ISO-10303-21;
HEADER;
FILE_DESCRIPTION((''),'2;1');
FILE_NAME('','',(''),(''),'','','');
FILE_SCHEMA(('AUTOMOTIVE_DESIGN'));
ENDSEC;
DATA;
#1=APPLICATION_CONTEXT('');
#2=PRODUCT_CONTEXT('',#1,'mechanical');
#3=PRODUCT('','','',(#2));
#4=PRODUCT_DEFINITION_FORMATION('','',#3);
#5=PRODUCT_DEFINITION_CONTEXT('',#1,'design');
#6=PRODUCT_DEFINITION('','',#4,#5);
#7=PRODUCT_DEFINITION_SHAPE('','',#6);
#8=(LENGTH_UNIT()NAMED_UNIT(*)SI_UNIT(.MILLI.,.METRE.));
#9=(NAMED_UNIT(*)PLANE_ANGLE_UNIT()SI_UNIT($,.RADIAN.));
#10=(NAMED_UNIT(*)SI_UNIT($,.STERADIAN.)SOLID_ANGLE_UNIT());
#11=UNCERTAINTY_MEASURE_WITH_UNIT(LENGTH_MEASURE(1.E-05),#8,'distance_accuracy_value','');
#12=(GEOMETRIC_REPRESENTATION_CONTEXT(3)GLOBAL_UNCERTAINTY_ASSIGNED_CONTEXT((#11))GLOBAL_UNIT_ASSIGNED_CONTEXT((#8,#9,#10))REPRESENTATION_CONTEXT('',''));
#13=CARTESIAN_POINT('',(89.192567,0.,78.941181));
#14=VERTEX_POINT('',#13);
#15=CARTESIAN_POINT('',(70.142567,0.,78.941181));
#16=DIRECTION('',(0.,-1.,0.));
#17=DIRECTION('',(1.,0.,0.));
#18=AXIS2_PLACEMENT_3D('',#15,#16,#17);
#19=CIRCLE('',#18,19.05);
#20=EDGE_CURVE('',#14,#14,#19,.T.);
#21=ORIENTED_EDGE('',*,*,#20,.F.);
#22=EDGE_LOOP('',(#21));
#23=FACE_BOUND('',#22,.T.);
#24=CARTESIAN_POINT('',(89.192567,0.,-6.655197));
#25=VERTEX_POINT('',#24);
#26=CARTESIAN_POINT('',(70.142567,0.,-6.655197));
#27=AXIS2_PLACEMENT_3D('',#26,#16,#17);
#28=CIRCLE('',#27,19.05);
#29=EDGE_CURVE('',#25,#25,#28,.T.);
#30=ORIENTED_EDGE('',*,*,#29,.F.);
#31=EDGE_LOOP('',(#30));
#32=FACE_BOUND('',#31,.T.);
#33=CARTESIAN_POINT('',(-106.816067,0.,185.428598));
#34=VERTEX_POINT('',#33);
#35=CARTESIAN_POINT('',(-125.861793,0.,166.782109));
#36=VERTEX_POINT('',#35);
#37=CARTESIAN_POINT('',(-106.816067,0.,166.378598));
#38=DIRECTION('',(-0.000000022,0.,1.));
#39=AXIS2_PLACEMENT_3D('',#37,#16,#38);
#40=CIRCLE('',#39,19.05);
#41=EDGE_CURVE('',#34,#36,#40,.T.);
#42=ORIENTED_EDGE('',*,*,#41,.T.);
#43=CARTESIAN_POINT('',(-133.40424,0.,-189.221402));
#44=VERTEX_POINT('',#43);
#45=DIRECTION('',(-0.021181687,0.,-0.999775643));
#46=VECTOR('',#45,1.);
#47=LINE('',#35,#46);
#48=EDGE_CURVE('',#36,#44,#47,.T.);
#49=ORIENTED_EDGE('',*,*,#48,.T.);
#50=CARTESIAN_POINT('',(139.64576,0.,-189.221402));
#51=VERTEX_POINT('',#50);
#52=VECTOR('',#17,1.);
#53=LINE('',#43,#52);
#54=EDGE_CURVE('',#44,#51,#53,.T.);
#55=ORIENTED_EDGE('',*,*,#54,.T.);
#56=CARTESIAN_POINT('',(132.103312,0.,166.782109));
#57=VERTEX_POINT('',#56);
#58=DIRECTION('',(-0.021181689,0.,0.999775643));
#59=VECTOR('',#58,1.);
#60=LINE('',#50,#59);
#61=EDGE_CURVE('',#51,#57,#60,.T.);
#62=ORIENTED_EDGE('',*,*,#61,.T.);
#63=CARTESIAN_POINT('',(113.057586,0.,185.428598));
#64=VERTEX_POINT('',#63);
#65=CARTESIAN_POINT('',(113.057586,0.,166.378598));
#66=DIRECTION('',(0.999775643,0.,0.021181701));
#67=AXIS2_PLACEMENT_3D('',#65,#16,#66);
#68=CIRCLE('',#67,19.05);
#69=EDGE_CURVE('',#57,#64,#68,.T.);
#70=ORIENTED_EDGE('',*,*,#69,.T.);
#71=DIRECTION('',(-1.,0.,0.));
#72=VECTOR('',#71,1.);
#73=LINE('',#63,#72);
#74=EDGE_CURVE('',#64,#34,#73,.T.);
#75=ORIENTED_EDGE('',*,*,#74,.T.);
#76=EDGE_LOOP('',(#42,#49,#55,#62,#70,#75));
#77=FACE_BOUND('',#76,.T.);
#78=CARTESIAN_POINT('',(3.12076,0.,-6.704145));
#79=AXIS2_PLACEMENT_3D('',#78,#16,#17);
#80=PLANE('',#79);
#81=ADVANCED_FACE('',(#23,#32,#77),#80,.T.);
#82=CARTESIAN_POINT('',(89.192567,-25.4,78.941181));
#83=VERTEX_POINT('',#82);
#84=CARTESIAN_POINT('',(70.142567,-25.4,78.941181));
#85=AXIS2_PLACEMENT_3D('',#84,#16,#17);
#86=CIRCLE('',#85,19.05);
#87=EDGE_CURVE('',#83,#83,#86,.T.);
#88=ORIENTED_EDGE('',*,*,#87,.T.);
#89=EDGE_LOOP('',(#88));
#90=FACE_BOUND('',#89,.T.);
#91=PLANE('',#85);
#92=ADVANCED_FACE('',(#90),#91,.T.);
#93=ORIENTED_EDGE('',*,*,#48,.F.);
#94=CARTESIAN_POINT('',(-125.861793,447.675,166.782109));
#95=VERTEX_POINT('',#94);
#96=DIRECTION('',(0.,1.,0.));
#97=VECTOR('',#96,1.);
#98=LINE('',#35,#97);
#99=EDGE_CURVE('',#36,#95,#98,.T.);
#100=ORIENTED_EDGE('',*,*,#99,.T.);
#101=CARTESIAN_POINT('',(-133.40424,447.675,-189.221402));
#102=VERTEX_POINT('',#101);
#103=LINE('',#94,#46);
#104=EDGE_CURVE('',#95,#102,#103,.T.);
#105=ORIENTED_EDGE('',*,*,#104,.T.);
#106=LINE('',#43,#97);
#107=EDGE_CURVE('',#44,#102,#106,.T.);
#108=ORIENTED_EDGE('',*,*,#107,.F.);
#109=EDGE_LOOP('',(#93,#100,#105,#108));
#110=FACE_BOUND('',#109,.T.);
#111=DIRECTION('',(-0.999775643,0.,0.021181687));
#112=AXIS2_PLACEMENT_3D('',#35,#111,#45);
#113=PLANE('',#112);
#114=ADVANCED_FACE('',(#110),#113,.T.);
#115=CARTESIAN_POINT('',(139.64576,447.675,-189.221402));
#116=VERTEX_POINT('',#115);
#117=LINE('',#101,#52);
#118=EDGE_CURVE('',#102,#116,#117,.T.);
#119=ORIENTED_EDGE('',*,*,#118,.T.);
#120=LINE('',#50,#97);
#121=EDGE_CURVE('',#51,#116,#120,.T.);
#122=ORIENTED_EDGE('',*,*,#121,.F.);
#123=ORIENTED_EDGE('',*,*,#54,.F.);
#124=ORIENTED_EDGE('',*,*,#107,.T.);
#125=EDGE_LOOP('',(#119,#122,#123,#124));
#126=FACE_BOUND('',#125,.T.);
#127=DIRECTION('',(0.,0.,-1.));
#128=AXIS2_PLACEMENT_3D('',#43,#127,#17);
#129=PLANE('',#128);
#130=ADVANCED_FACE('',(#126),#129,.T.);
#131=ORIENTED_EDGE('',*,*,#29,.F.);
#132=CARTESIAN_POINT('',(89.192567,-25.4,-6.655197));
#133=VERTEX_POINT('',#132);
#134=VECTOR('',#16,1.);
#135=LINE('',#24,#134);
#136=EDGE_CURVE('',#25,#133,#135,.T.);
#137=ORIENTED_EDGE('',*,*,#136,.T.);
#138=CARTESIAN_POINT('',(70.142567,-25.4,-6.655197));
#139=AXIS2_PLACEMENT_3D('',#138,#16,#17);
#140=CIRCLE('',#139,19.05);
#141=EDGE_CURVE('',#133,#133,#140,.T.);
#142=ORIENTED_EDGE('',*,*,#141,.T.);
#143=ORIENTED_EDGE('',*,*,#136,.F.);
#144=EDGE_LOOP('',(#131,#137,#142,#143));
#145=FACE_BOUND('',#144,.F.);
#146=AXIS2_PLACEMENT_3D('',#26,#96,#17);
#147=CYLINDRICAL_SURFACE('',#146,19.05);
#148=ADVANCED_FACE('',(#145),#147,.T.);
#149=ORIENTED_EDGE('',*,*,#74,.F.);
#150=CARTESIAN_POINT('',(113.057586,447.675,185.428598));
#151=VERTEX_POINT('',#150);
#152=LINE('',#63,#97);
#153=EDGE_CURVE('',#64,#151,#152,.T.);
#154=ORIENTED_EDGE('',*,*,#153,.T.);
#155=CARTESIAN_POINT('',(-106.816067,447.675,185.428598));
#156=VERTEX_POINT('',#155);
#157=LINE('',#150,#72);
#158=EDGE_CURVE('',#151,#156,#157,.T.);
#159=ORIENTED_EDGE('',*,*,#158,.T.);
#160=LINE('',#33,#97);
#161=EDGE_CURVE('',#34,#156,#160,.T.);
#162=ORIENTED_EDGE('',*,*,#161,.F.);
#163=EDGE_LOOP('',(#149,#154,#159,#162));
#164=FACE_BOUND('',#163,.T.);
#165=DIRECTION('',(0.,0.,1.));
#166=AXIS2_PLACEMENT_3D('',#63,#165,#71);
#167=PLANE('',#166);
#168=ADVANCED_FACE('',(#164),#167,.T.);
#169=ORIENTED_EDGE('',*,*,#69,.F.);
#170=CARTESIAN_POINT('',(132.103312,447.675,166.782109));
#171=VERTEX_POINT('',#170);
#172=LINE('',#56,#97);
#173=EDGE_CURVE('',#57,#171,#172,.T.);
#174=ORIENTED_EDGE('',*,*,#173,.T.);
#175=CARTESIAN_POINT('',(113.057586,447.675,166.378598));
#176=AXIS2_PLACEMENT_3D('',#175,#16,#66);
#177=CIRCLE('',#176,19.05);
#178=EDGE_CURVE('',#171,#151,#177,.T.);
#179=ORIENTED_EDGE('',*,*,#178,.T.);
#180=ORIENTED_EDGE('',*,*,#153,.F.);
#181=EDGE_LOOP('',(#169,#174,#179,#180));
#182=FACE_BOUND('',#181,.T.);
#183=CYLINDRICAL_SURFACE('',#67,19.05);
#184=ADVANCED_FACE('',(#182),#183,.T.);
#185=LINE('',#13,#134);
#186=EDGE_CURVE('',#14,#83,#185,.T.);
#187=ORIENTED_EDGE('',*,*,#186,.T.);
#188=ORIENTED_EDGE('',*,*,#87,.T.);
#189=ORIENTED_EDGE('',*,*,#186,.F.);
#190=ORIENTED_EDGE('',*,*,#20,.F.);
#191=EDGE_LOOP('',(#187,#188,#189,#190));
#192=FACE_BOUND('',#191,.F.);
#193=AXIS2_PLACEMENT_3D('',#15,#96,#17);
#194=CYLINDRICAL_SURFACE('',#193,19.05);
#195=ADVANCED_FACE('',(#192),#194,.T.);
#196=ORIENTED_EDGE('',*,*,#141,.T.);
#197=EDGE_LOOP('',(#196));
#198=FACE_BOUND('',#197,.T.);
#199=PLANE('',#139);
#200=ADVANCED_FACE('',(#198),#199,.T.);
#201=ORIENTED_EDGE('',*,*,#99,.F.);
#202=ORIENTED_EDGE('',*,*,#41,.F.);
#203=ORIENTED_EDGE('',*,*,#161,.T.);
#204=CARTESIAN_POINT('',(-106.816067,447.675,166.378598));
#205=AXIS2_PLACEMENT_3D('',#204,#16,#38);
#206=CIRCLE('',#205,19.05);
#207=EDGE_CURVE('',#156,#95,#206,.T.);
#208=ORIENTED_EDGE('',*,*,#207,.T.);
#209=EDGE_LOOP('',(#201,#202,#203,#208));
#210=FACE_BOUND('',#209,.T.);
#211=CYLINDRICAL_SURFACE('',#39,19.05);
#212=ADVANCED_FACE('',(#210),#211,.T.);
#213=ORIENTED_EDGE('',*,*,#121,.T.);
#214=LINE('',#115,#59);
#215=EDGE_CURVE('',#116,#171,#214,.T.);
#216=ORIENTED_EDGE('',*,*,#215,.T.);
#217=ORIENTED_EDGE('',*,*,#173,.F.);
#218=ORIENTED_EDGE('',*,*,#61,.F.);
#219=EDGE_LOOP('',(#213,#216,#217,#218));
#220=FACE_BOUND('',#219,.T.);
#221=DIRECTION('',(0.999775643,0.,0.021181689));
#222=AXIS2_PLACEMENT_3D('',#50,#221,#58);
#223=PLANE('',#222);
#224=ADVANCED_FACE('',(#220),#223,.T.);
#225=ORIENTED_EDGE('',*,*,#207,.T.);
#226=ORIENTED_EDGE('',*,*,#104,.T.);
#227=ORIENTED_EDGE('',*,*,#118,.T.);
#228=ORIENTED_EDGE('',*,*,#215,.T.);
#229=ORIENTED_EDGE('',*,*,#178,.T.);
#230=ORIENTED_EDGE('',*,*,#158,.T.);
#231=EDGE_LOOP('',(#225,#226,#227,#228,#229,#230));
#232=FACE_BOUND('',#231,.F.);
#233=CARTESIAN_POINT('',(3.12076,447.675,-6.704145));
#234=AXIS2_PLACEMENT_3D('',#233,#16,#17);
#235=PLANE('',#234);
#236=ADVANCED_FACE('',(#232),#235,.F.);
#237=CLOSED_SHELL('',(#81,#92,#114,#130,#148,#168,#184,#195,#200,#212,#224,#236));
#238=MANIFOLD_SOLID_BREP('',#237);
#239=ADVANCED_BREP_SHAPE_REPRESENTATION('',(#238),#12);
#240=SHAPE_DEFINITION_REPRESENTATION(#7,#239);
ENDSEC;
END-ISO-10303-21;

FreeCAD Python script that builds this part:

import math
import FreeCAD as App
import Part
import Sketcher

V = App.Vector
Q = App.Units.Quantity

doc = App.newDocument("Part")
body = doc.addObject("PartDesign::Body", "Body")

# Sketch on XZ plane
sketch1 = doc.addObject("Sketcher::SketchObject", "Sketch")
body.addObject(sketch1)
sketch1.AttachmentSupport = (doc.XZ_Plane, [""])
sketch1.MapMode = "FlatFace"
sketch1.addGeometry(Part.LineSegment(V(113, 185, 0), V(-107, 185, 0)), False)
sketch1.addGeometry(Part.ArcOfCircle(Part.Circle(V(-107, 166, 0), V(0, 0, 1), 19), math.radians(90), math.radians(179)), False)
sketch1.addGeometry(Part.LineSegment(V(-126, 167, 0), V(-133, -189, 0)), False)
sketch1.addGeometry(Part.LineSegment(V(-133, -189, 0), V(140, -189, 0)), False)
sketch1.addGeometry(Part.LineSegment(V(140, -189, 0), V(132, 167, 0)), False)
sketch1.addGeometry(Part.ArcOfCircle(Part.Circle(V(113, 166, 0), V(0, 0, 1), 19), math.radians(1), math.radians(90)), False)
sketch1.addConstraint(Sketcher.Constraint("Tangent", 0, 2, 1, 1))
sketch1.addConstraint(Sketcher.Constraint("Tangent", 1, 2, 2, 1))
sketch1.addConstraint(Sketcher.Constraint("Coincident", 2, 2, 3, 1))
sketch1.addConstraint(Sketcher.Constraint("Coincident", 3, 2, 4, 1))
sketch1.addConstraint(Sketcher.Constraint("Tangent", 4, 2, 5, 1))
sketch1.addConstraint(Sketcher.Constraint("Tangent", 5, 2, 0, 1))
sketch1.addConstraint(Sketcher.Constraint("Horizontal", 0))
sketch1.addConstraint(Sketcher.Constraint("Horizontal", 3))
sketch1.addConstraint(Sketcher.Constraint("Equal", 1, 5))
sketch1.addConstraint(Sketcher.Constraint("Horizontal", 1, 2, 4, 2))
sketch1.addConstraint(Sketcher.Constraint("Radius", 1, Q("0.75 in")))
sketch1.addConstraint(Sketcher.Constraint("DistanceY", 2, 2, 1, 3, Q("14 in")))
sketch1.addConstraint(Sketcher.Constraint("DistanceX", 3, 1, 3, 2, Q("10.75 in")))
sketch1.addConstraint(Sketcher.Constraint("Distance", 2, Q("356.083401 mm")))
sketch1.addConstraint(Sketcher.Constraint("DistanceY", -1, 1, 0, 2, Q("185.428598 mm")))
sketch1.addConstraint(Sketcher.Constraint("DistanceX", 2, 2, -1, 1, Q("133.40424 mm")))
pad1 = doc.addObject("PartDesign::Pad", "Pad")
body.addObject(pad1)
pad1.Profile = sketch1
pad1.Length = Q("17.625 in")
pad1.Reversed = True

# Sketch on XZ plane
sketch2 = doc.addObject("Sketcher::SketchObject", "Sketch001")
body.addObject(sketch2)
sketch2.AttachmentSupport = (doc.XZ_Plane, [""])
sketch2.MapMode = "FlatFace"
sketch2.addGeometry(Part.Circle(V(70, 79, 0), V(0, 0, 1), 19), False)
sketch2.addGeometry(Part.Circle(V(70, -7, 0), V(0, 0, 1), 19), False)
sketch2.addConstraint(Sketcher.Constraint("Equal", 0, 1))
sketch2.addConstraint(Sketcher.Constraint("Vertical", 0, 3, 1, 3))
sketch2.addConstraint(Sketcher.Constraint("Diameter", 0, Q("1.5 in")))
sketch2.addConstraint(Sketcher.Constraint("DistanceY", -1, 1, 0, 3, Q("78.941181 mm")))
sketch2.addConstraint(Sketcher.Constraint("DistanceY", 1, 3, 0, 3, Q("85.596378 mm")))
sketch2.addConstraint(Sketcher.Constraint("DistanceX", -1, 1, 0, 3, Q("70.142567 mm")))
pad2 = doc.addObject("PartDesign::Pad", "Pad001")
body.addObject(pad2)
pad2.Profile = sketch2
pad2.Length = Q("1 in")

doc.recompute()
